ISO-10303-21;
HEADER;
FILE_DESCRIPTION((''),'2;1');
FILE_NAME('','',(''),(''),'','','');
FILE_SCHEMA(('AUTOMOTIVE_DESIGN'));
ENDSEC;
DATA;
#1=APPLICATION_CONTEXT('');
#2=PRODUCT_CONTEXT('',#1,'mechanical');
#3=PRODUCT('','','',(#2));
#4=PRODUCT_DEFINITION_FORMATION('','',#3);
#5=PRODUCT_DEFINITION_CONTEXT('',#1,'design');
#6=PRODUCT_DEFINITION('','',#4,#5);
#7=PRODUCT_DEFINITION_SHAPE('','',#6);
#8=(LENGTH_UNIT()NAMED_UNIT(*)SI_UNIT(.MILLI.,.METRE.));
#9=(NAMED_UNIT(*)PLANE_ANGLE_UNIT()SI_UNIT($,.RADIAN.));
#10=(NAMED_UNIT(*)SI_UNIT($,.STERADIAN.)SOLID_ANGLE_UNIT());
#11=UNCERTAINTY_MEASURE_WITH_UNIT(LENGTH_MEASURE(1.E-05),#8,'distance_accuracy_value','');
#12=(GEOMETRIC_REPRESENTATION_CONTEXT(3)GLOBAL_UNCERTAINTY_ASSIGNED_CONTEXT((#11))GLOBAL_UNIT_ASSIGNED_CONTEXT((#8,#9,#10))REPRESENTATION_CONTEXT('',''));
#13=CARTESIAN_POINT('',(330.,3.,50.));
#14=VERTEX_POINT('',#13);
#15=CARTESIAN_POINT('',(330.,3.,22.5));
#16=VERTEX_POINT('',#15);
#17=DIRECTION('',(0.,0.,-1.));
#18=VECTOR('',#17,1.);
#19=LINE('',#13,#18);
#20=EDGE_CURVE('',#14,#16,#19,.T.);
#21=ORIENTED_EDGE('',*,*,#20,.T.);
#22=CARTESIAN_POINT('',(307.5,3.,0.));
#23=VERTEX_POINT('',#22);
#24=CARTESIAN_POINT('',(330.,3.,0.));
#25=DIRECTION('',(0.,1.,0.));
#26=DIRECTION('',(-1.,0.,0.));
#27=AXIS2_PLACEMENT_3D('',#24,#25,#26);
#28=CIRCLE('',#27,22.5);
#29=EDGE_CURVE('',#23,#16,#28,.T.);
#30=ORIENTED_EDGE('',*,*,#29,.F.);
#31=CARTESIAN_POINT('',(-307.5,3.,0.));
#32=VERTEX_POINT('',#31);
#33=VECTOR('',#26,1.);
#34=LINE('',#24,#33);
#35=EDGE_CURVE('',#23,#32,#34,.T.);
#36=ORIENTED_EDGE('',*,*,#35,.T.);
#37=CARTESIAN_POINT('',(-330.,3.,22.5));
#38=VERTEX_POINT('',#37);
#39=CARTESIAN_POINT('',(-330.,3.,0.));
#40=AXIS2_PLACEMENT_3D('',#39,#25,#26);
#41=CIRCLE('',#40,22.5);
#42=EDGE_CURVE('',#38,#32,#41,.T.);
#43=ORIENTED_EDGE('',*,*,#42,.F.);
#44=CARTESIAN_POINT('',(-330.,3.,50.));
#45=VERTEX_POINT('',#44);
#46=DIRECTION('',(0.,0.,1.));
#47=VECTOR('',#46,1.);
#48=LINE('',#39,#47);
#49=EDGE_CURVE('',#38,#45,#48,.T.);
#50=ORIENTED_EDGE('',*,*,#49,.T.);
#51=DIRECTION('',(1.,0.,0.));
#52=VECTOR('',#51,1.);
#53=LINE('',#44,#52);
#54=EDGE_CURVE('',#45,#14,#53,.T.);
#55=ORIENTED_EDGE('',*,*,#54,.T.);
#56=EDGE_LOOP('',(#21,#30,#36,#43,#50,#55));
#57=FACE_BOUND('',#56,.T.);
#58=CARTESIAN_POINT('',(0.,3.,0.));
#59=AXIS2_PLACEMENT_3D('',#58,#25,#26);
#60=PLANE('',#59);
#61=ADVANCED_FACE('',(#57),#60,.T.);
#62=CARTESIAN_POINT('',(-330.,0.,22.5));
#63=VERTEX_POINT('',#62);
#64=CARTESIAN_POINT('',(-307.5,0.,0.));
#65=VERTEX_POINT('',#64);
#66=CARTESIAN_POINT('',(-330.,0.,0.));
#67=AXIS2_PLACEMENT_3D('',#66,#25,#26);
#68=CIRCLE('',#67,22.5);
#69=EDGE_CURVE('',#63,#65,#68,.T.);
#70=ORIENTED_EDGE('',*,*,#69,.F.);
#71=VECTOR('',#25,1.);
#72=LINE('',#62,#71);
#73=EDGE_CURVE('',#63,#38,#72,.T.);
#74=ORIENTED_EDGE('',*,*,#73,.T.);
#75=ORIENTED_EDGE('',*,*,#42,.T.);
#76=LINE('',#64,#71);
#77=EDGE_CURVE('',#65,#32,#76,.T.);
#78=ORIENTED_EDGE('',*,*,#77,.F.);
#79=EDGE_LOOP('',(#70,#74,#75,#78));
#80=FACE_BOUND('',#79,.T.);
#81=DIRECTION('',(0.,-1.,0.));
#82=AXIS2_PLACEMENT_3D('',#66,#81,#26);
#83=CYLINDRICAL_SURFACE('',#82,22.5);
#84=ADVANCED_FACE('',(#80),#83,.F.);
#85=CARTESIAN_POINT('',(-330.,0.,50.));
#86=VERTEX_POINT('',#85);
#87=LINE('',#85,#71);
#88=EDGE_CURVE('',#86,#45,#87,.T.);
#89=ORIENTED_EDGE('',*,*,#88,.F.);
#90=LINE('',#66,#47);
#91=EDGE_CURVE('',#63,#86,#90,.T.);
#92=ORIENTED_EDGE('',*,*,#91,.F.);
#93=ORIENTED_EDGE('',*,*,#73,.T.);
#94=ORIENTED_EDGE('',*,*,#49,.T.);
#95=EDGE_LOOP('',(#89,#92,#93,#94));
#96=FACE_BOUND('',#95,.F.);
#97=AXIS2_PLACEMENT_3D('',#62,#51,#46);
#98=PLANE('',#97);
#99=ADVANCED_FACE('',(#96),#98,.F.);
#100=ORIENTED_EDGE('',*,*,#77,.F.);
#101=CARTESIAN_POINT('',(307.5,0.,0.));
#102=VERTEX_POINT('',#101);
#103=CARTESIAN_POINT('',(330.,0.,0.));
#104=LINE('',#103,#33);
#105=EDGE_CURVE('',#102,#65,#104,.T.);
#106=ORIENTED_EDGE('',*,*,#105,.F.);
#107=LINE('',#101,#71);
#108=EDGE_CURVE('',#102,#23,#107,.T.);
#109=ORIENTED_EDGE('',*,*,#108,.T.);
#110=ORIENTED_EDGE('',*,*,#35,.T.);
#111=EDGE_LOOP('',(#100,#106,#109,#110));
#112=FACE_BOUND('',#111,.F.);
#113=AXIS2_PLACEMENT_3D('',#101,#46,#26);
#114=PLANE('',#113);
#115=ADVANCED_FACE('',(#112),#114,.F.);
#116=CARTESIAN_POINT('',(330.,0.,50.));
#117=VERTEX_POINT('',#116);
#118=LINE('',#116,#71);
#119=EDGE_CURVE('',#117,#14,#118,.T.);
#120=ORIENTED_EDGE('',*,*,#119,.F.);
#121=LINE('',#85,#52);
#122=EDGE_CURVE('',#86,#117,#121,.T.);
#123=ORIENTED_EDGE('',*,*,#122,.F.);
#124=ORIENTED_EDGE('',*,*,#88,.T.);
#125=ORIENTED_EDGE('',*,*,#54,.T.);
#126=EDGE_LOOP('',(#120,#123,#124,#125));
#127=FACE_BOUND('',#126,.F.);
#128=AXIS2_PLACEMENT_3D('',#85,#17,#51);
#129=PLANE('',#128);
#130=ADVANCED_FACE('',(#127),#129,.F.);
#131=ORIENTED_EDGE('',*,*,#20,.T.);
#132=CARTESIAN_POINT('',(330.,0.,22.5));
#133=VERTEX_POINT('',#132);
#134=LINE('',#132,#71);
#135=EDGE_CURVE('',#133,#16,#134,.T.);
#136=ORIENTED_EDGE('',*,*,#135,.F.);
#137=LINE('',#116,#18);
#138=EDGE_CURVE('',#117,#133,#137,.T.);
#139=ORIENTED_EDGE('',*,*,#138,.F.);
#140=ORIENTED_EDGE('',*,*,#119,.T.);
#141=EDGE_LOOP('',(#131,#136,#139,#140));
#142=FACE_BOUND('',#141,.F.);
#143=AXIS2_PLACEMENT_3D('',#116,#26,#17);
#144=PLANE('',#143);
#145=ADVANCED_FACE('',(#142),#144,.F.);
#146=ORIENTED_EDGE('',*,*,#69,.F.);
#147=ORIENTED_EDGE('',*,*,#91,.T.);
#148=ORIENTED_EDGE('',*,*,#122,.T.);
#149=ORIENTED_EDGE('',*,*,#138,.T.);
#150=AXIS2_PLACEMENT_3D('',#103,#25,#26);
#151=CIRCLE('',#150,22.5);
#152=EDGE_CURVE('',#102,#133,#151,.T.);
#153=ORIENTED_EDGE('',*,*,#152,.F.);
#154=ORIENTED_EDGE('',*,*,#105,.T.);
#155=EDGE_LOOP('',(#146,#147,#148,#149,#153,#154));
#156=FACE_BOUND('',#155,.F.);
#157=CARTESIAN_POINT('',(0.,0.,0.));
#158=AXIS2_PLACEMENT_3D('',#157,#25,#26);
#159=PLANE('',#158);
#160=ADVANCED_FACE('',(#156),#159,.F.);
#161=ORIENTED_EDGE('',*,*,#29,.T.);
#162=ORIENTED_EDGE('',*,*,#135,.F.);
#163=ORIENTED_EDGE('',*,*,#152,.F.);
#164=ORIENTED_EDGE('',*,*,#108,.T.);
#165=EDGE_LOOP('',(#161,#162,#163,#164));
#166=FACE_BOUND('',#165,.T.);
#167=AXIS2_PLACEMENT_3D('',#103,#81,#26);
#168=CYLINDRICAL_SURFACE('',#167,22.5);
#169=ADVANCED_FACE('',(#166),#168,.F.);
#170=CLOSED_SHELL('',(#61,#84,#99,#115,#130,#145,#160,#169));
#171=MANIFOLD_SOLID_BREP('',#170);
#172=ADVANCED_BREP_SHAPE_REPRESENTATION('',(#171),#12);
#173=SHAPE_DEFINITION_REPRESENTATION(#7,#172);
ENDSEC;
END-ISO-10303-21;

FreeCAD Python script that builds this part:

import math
import FreeCAD as App
import Part
import Sketcher
Q = App.Units.Quantity

doc = App.newDocument("Part")
body = doc.addObject("PartDesign::Body", "Body")

sketch1 = doc.addObject("Sketcher::SketchObject", "Sketch")
body.addObject(sketch1)
sketch1.AttachmentSupport = (doc.XZ_Plane, [""])
sketch1.MapMode = "FlatFace"
sketch1.addGeometry([
    Part.LineSegment(App.Vector(-330, 22, 0), App.Vector(-330, 50, 0)),
    Part.LineSegment(App.Vector(-330, 50, 0), App.Vector(330, 50, 0)),
    Part.LineSegment(App.Vector(330, 50, 0), App.Vector(330, 22, 0)),
    Part.ArcOfCircle(Part.Circle(App.Vector(330, 0, 0), App.Vector(0, 0, 1), 22), math.radians(90), math.radians(180)),
    Part.LineSegment(App.Vector(308, 0, 0), App.Vector(-308, 0, 0)),
    Part.ArcOfCircle(Part.Circle(App.Vector(-330, 0, 0), App.Vector(0, 0, 1), 22), math.radians(0), math.radians(90)),
], False)
sketch1.addConstraint([
    Sketcher.Constraint("Coincident", 0, 2, 1, 1),
    Sketcher.Constraint("Coincident", 1, 2, 2, 1),
    Sketcher.Constraint("Coincident", 2, 2, 3, 1),
    Sketcher.Constraint("Coincident", 3, 2, 4, 1),
    Sketcher.Constraint("Coincident", 4, 2, 5, 1),
    Sketcher.Constraint("Coincident", 5, 2, 0, 1),
    Sketcher.Constraint("Vertical", 0),
    Sketcher.Constraint("Horizontal", 1),
    Sketcher.Constraint("Vertical", 2),
    Sketcher.Constraint("Horizontal", 4),
    Sketcher.Constraint("Equal", 3, 5),
    Sketcher.Constraint("Symmetric", 3, 3, 5, 3, -1, 1),
    Sketcher.Constraint("Symmetric", 2, 2, 5, 2, -2),
    Sketcher.Constraint("PointOnObject", 3, 2, -1),
    Sketcher.Constraint("Vertical", 5, 3, 0, 2),
    Sketcher.Constraint("Radius", 3, Q("22.5 mm")),
    Sketcher.Constraint("DistanceX", 1, 1, 1, 2, Q("660 mm")),
    Sketcher.Constraint("DistanceY", -1, 1, 0, 2, Q("50 mm")),
])
pad1 = doc.addObject("PartDesign::Pad", "Pad")
body.addObject(pad1)
pad1.Profile = sketch1
pad1.Length = 3
pad1.Reversed = True

doc.recompute()
